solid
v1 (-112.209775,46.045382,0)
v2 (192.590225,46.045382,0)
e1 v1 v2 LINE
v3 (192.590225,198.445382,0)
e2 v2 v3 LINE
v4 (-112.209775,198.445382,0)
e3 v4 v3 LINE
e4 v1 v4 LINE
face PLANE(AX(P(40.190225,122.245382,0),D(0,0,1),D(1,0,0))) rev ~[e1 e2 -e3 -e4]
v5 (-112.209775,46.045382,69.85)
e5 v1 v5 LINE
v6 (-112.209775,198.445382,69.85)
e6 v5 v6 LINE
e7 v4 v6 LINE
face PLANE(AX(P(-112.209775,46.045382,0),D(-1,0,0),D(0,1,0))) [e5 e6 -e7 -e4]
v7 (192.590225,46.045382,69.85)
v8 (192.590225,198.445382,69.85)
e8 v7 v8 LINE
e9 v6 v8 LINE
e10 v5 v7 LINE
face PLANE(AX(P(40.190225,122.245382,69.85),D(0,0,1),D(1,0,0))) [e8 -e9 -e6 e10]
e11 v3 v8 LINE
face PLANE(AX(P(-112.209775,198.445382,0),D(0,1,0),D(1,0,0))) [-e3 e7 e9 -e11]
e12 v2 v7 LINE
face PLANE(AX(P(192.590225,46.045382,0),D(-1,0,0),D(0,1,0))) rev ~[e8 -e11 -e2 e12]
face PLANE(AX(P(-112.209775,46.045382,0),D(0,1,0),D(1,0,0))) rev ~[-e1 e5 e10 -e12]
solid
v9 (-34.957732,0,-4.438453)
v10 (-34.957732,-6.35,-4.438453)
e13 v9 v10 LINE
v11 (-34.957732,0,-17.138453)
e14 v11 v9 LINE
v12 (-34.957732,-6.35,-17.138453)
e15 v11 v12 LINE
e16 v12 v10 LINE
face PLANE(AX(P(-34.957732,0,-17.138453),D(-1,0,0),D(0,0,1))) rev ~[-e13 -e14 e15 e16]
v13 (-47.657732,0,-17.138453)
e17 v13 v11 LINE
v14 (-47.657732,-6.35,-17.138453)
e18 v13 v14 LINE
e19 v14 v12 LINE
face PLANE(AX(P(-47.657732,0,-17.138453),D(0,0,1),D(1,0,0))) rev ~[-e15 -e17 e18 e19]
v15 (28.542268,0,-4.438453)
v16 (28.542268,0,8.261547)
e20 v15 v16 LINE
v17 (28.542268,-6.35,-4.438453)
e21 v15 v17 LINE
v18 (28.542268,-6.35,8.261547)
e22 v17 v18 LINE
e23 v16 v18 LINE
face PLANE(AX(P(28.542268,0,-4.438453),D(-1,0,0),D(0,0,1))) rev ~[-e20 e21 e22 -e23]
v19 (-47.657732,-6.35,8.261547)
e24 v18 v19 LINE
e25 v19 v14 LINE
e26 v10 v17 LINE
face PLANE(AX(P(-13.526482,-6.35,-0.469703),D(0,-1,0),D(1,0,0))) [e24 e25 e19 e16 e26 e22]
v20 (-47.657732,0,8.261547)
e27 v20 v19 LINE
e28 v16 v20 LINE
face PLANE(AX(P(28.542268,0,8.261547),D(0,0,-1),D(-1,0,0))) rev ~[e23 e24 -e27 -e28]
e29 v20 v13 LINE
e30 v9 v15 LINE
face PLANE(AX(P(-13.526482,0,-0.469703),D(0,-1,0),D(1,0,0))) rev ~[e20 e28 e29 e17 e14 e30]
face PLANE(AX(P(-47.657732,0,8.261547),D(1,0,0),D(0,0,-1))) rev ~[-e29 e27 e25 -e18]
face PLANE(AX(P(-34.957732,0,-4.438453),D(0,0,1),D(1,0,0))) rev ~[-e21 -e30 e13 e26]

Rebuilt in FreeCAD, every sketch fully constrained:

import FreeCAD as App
import Part
import Sketcher

V = App.Vector
Q = App.Units.Quantity

doc = App.newDocument("Part")
body = doc.addObject("PartDesign::Body", "Body")

# Sketch on XZ plane
sketch1 = body.newObject("Sketcher::SketchObject", "Sketch")
sketch1.AttachmentSupport = (doc.getObject("XZ_Plane"), [""])
sketch1.MapMode = "FlatFace"
sketch1.addGeometry([
    Part.LineSegment(V(-47.657732, 8.261547, 0), V(-47.657732, -17.138453, 0)),  # 0
    Part.LineSegment(V(-47.657732, -17.138453, 0), V(-34.957732, -17.138453, 0)),  # 1
    Part.LineSegment(V(-34.957732, -17.138453, 0), V(-34.957732, -4.438453, 0)),  # 2
    Part.LineSegment(V(-34.957732, -4.438453, 0), V(28.542268, -4.438453, 0)),  # 3
    Part.LineSegment(V(28.542268, -4.438453, 0), V(28.542268, 8.261547, 0)),  # 4
    Part.LineSegment(V(28.542268, 8.261547, 0), V(-47.657732, 8.261547, 0)),  # 5
], False)
sketch1.addConstraint([
    Sketcher.Constraint("Coincident", 0, 2, 1, 1),
    Sketcher.Constraint("Coincident", 1, 2, 2, 1),
    Sketcher.Constraint("Coincident", 2, 2, 3, 1),
    Sketcher.Constraint("Coincident", 3, 2, 4, 1),
    Sketcher.Constraint("Coincident", 4, 2, 5, 1),
    Sketcher.Constraint("Coincident", 5, 2, 0, 1),
    Sketcher.Constraint("Vertical", 0),
    Sketcher.Constraint("Horizontal", 1),
    Sketcher.Constraint("Vertical", 2),
    Sketcher.Constraint("Horizontal", 3),
    Sketcher.Constraint("Vertical", 4),
    Sketcher.Constraint("Horizontal", 5),
    Sketcher.Constraint("Equal", 1, 2),
    Sketcher.Constraint("Equal", 2, 4),
    Sketcher.Constraint("DistanceX", 5, 2, 5, 1, Q("3 in")),
    Sketcher.Constraint("DistanceY", 0, 2, 0, 1, Q("1 in")),
    Sketcher.Constraint("DistanceX", -1, 1, 3, 2, Q("28.542268 mm")),
    Sketcher.Constraint("DistanceY", 0, 2, -1, 1, Q("17.138453 mm")),
])
pad1 = body.newObject("PartDesign::Pad", "Pad")
pad1.Profile = sketch1
pad1.Length = Q("0.25 in")
body2 = doc.addObject("PartDesign::Body", "Body001")

# Sketch on XY plane
sketch2 = body2.newObject("Sketcher::SketchObject", "Sketch001")
sketch2.AttachmentSupport = (doc.getObject("XY_Plane001"), [""])
sketch2.MapMode = "FlatFace"
sketch2.addGeometry([
    Part.LineSegment(V(-112.209775, 198.445382, 0), V(-112.209775, 46.045382, 0)),
    Part.LineSegment(V(-112.209775, 46.045382, 0), V(192.590225, 46.045382, 0)),
    Part.LineSegment(V(192.590225, 46.045382, 0), V(192.590225, 198.445382, 0)),
    Part.LineSegment(V(192.590225, 198.445382, 0), V(-112.209775, 198.445382, 0)),
], False)
sketch2.addConstraint([
    Sketcher.Constraint("Coincident", 0, 2, 1, 1),
    Sketcher.Constraint("Coincident", 1, 2, 2, 1),
    Sketcher.Constraint("Coincident", 2, 2, 3, 1),
    Sketcher.Constraint("Coincident", 3, 2, 0, 1),
    Sketcher.Constraint("Vertical", 0),
    Sketcher.Constraint("Horizontal", 1),
    Sketcher.Constraint("Vertical", 2),
    Sketcher.Constraint("Horizontal", 3),
    Sketcher.Constraint("DistanceX", 1, 1, 1, 2, Q("12 in")),
    Sketcher.Constraint("DistanceY", 0, 2, 0, 1, Q("6 in")),
    Sketcher.Constraint("DistanceY", -1, 1, 0, 2, Q("46.045382 mm")),
    Sketcher.Constraint("DistanceX", 0, 2, -1, 1, Q("112.209775 mm")),
])
pad2 = body2.newObject("PartDesign::Pad", "Pad001")
pad2.Profile = sketch2
pad2.Length = Q("2.75 in")

doc.recompute()
